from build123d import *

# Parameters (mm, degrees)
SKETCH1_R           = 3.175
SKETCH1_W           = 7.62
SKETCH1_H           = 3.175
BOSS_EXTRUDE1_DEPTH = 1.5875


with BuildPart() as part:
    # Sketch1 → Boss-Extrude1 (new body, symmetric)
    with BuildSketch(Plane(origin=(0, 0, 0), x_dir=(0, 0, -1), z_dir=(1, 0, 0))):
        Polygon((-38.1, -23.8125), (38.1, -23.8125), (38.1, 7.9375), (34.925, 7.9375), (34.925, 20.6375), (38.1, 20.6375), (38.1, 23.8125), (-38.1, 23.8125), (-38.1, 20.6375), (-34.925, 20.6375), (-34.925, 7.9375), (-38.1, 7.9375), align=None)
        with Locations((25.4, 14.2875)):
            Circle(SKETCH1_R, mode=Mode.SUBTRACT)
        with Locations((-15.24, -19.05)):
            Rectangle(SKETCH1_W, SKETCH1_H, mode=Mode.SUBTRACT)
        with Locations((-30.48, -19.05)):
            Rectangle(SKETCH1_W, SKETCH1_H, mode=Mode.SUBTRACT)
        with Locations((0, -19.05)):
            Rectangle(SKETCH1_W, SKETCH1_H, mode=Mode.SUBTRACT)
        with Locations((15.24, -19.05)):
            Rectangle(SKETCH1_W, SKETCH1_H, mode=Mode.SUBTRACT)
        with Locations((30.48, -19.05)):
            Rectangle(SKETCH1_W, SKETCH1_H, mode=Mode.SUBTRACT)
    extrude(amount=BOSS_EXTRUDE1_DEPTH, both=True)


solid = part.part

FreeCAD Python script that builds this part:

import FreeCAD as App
import Part
import Sketcher
from FreeCAD import Vector
Q = App.Units.Quantity

doc = App.newDocument("Part")
params = doc.addObject("Spreadsheet::Sheet", "Params")
for row, (alias, value) in enumerate([
    ("sketch1_diameter", "0.25 in"),
    ("sketch1_height", "3 in"),
    ("sketch1_width", "0.5 in"),
    ("sketch1_height2", "0.3 in"),
    ("sketch1_width2", "1.25 in"),
    ("pad1_length", "0.125 in"),
], start=1):
    params.set(f"A{row}", alias)
    params.set(f"B{row}", "=" + value)
    params.setAlias(f"B{row}", alias)

body = doc.addObject("PartDesign::Body", "Body")

# Sketch on YZ plane
sketch1 = body.newObject("Sketcher::SketchObject", "Sketch")
sketch1.AttachmentSupport = (doc.getObject("YZ_Plane"), [""])
sketch1.MapMode = "FlatFace"
sketch1.addGeometry(Part.LineSegment(Vector(-23.8125, 38.1, 0), Vector(-23.8125, -38.1, 0)), False)
sketch1.addGeometry(Part.LineSegment(Vector(-23.8125, -38.1, 0), Vector(7.9375, -38.1, 0)), False)
sketch1.addGeometry(Part.LineSegment(Vector(7.9375, -38.1, 0), Vector(7.9375, -34.925, 0)), False)
sketch1.addGeometry(Part.LineSegment(Vector(7.9375, -34.925, 0), Vector(20.6375, -34.925, 0)), False)
sketch1.addGeometry(Part.LineSegment(Vector(20.6375, -34.925, 0), Vector(20.6375, -38.1, 0)), False)
sketch1.addGeometry(Part.LineSegment(Vector(20.6375, -38.1, 0), Vector(23.8125, -38.1, 0)), False)
sketch1.addGeometry(Part.LineSegment(Vector(23.8125, -38.1, 0), Vector(23.8125, 38.1, 0)), False)
sketch1.addGeometry(Part.LineSegment(Vector(23.8125, 38.1, 0), Vector(20.6375, 38.1, 0)), False)
sketch1.addGeometry(Part.LineSegment(Vector(20.6375, 38.1, 0), Vector(20.6375, 34.925, 0)), False)
sketch1.addGeometry(Part.LineSegment(Vector(20.6375, 34.925, 0), Vector(7.9375, 34.925, 0)), False)
sketch1.addGeometry(Part.LineSegment(Vector(7.9375, 34.925, 0), Vector(7.9375, 38.1, 0)), False)
sketch1.addGeometry(Part.LineSegment(Vector(7.9375, 38.1, 0), Vector(-23.8125, 38.1, 0)), False)
sketch1.addGeometry(Part.LineSegment(Vector(-20.6375, 26.67, 0), Vector(-20.6375, 34.29, 0)), False)
sketch1.addGeometry(Part.LineSegment(Vector(-20.6375, 34.29, 0), Vector(-17.4625, 34.29, 0)), False)
sketch1.addGeometry(Part.LineSegment(Vector(-17.4625, 34.29, 0), Vector(-17.4625, 26.67, 0)), False)
sketch1.addGeometry(Part.LineSegment(Vector(-17.4625, 26.67, 0), Vector(-20.6375, 26.67, 0)), False)
sketch1.addGeometry(Part.LineSegment(Vector(-20.6375, 11.43, 0), Vector(-20.6375, 19.05, 0)), False)
sketch1.addGeometry(Part.LineSegment(Vector(-20.6375, 19.05, 0), Vector(-17.4625, 19.05, 0)), False)
sketch1.addGeometry(Part.LineSegment(Vector(-17.4625, 19.05, 0), Vector(-17.4625, 11.43, 0)), False)
sketch1.addGeometry(Part.LineSegment(Vector(-17.4625, 11.43, 0), Vector(-20.6375, 11.43, 0)), False)
sketch1.addGeometry(Part.LineSegment(Vector(-20.6375, -3.81, 0), Vector(-20.6375, 3.81, 0)), False)
sketch1.addGeometry(Part.LineSegment(Vector(-20.6375, 3.81, 0), Vector(-17.4625, 3.81, 0)), False)
sketch1.addGeometry(Part.LineSegment(Vector(-17.4625, 3.81, 0), Vector(-17.4625, -3.81, 0)), False)
sketch1.addGeometry(Part.LineSegment(Vector(-17.4625, -3.81, 0), Vector(-20.6375, -3.81, 0)), False)
sketch1.addGeometry(Part.LineSegment(Vector(-20.6375, -19.05, 0), Vector(-20.6375, -11.43, 0)), False)
sketch1.addGeometry(Part.LineSegment(Vector(-20.6375, -11.43, 0), Vector(-17.4625, -11.43, 0)), False)
sketch1.addGeometry(Part.LineSegment(Vector(-17.4625, -11.43, 0), Vector(-17.4625, -19.05, 0)), False)
sketch1.addGeometry(Part.LineSegment(Vector(-17.4625, -19.05, 0), Vector(-20.6375, -19.05, 0)), False)
sketch1.addGeometry(Part.LineSegment(Vector(-20.6375, -34.29, 0), Vector(-20.6375, -26.67, 0)), False)
sketch1.addGeometry(Part.LineSegment(Vector(-20.6375, -26.67, 0), Vector(-17.4625, -26.67, 0)), False)
sketch1.addGeometry(Part.LineSegment(Vector(-17.4625, -26.67, 0), Vector(-17.4625, -34.29, 0)), False)
sketch1.addGeometry(Part.LineSegment(Vector(-17.4625, -34.29, 0), Vector(-20.6375, -34.29, 0)), False)
sketch1.addGeometry(Part.Circle(Vector(14.2875, -25.4, 0), Vector(0, 0, 1), 3.175), False)
sketch1.addConstraint(Sketcher.Constraint("Coincident", 0, 2, 1, 1))
sketch1.addConstraint(Sketcher.Constraint("Coincident", 1, 2, 2, 1))
sketch1.addConstraint(Sketcher.Constraint("Coincident", 2, 2, 3, 1))
sketch1.addConstraint(Sketcher.Constraint("Coincident", 3, 2, 4, 1))
sketch1.addConstraint(Sketcher.Constraint("Coincident", 4, 2, 5, 1))
sketch1.addConstraint(Sketcher.Constraint("Coincident", 5, 2, 6, 1))
sketch1.addConstraint(Sketcher.Constraint("Coincident", 6, 2, 7, 1))
sketch1.addConstraint(Sketcher.Constraint("Coincident", 7, 2, 8, 1))
sketch1.addConstraint(Sketcher.Constraint("Coincident", 8, 2, 9, 1))
sketch1.addConstraint(Sketcher.Constraint("Coincident", 9, 2, 10, 1))
sketch1.addConstraint(Sketcher.Constraint("Coincident", 10, 2, 11, 1))
sketch1.addConstraint(Sketcher.Constraint("Coincident", 11, 2, 0, 1))
sketch1.addConstraint(Sketcher.Constraint("Coincident", 12, 2, 13, 1))
sketch1.addConstraint(Sketcher.Constraint("Coincident", 13, 2, 14, 1))
sketch1.addConstraint(Sketcher.Constraint("Coincident", 14, 2, 15, 1))
sketch1.addConstraint(Sketcher.Constraint("Coincident", 15, 2, 12, 1))
sketch1.addConstraint(Sketcher.Constraint("Coincident", 16, 2, 17, 1))
sketch1.addConstraint(Sketcher.Constraint("Coincident", 17, 2, 18, 1))
sketch1.addConstraint(Sketcher.Constraint("Coincident", 18, 2, 19, 1))
sketch1.addConstraint(Sketcher.Constraint("Coincident", 19, 2, 16, 1))
sketch1.addConstraint(Sketcher.Constraint("Coincident", 20, 2, 21, 1))
sketch1.addConstraint(Sketcher.Constraint("Coincident", 21, 2, 22, 1))
sketch1.addConstraint(Sketcher.Constraint("Coincident", 22, 2, 23, 1))
sketch1.addConstraint(Sketcher.Constraint("Coincident", 23, 2, 20, 1))
sketch1.addConstraint(Sketcher.Constraint("Coincident", 24, 2, 25, 1))
sketch1.addConstraint(Sketcher.Constraint("Coincident", 25, 2, 26, 1))
sketch1.addConstraint(Sketcher.Constraint("Coincident", 26, 2, 27, 1))
sketch1.addConstraint(Sketcher.Constraint("Coincident", 27, 2, 24, 1))
sketch1.addConstraint(Sketcher.Constraint("Coincident", 28, 2, 29, 1))
sketch1.addConstraint(Sketcher.Constraint("Coincident", 29, 2, 30, 1))
sketch1.addConstraint(Sketcher.Constraint("Coincident", 30, 2, 31, 1))
sketch1.addConstraint(Sketcher.Constraint("Coincident", 31, 2, 28, 1))
sketch1.addConstraint(Sketcher.Constraint("Vertical", 0))
sketch1.addConstraint(Sketcher.Constraint("Horizontal", 1))
sketch1.addConstraint(Sketcher.Constraint("Vertical", 2))
sketch1.addConstraint(Sketcher.Constraint("Horizontal", 3))
sketch1.addConstraint(Sketcher.Constraint("Vertical", 4))
sketch1.addConstraint(Sketcher.Constraint("Horizontal", 5))
sketch1.addConstraint(Sketcher.Constraint("Vertical", 6))
sketch1.addConstraint(Sketcher.Constraint("Horizontal", 7))
sketch1.addConstraint(Sketcher.Constraint("Vertical", 8))
sketch1.addConstraint(Sketcher.Constraint("Horizontal", 9))
sketch1.addConstraint(Sketcher.Constraint("Vertical", 10))
sketch1.addConstraint(Sketcher.Constraint("Horizontal", 11))
sketch1.addConstraint(Sketcher.Constraint("Vertical", 12))
sketch1.addConstraint(Sketcher.Constraint("Horizontal", 13))
sketch1.addConstraint(Sketcher.Constraint("Vertical", 14))
sketch1.addConstraint(Sketcher.Constraint("Horizontal", 15))
sketch1.addConstraint(Sketcher.Constraint("Vertical", 16))
sketch1.addConstraint(Sketcher.Constraint("Horizontal", 17))
sketch1.addConstraint(Sketcher.Constraint("Vertical", 18))
sketch1.addConstraint(Sketcher.Constraint("Horizontal", 19))
sketch1.addConstraint(Sketcher.Constraint("Vertical", 20))
sketch1.addConstraint(Sketcher.Constraint("Horizontal", 21))
sketch1.addConstraint(Sketcher.Constraint("Vertical", 22))
sketch1.addConstraint(Sketcher.Constraint("Horizontal", 23))
sketch1.addConstraint(Sketcher.Constraint("Vertical", 24))
sketch1.addConstraint(Sketcher.Constraint("Horizontal", 25))
sketch1.addConstraint(Sketcher.Constraint("Vertical", 26))
sketch1.addConstraint(Sketcher.Constraint("Horizontal", 27))
sketch1.addConstraint(Sketcher.Constraint("Vertical", 28))
sketch1.addConstraint(Sketcher.Constraint("Horizontal", 29))
sketch1.addConstraint(Sketcher.Constraint("Vertical", 30))
sketch1.addConstraint(Sketcher.Constraint("Horizontal", 31))
sketch1.addConstraint(Sketcher.Constraint("Symmetric", 0, 2, 6, 2, -1, 1))
sketch1.addConstraint(Sketcher.Constraint("Symmetric", 4, 2, 7, 2, -1))
sketch1.addConstraint(Sketcher.Constraint("Symmetric", 2, 2, 9, 2, -1))
sketch1.addConstraint(Sketcher.Constraint("Symmetric", 19, 2, 24, 2, -1))
sketch1.addConstraint(Sketcher.Constraint("Symmetric", 17, 2, 26, 2, -1))
sketch1.addConstraint(Sketcher.Constraint("Symmetric", 15, 2, 28, 2, -1))
sketch1.addConstraint(Sketcher.Constraint("Symmetric", 13, 2, 30, 2, -1))
sketch1.addConstraint(Sketcher.Constraint("Horizontal", 7, 2, 10, 2))
sketch1.addConstraint(Sketcher.Constraint("Vertical", 15, 2, 16, 2))
sketch1.addConstraint(Sketcher.Constraint("Vertical", 14, 2, 17, 2))
sketch1.addConstraint(Sketcher.Constraint("Vertical", 19, 2, 20, 2))
sketch1.addConstraint(Sketcher.Constraint("Vertical", 18, 2, 21, 2))
sketch1.addConstraint(Sketcher.Constraint("Equal", 7, 13))
sketch1.addConstraint(Sketcher.Constraint("Equal", 31, 2))
sketch1.addConstraint(Sketcher.Constraint("Equal", 14, 16))
sketch1.addConstraint(Sketcher.Constraint("Equal", 18, 20))
sketch1.addConstraint(Sketcher.Constraint("Diameter", 32, Q("0.25 in")))
sketch1.addConstraint(Sketcher.Constraint("DistanceY", 0, 2, 0, 1, Q("3 in")))
sketch1.addConstraint(Sketcher.Constraint("DistanceX", 3, 1, 3, 2, Q("0.5 in")))
sketch1.addConstraint(Sketcher.Constraint("DistanceY", 12, 1, 12, 2, Q("0.3 in")))
sketch1.addConstraint(Sketcher.Constraint("DistanceY", 32, 3, -1, 1, Q("1 in")))
sketch1.addConstraint(Sketcher.Constraint("DistanceX", 13, 2, 9, 2, Q("1 in")))
sketch1.addConstraint(Sketcher.Constraint("DistanceX", 1, 1, 1, 2, Q("1.25 in")))
sketch1.addConstraint(Sketcher.Constraint("DistanceX", 0, 2, 32, 3, Q("1.5 in")))
sketch1.addConstraint(Sketcher.Constraint("DistanceY", 16, 2, 15, 2, Q("0.3 in")))
sketch1.addConstraint(Sketcher.Constraint("DistanceY", 20, 2, 19, 2, Q("0.3 in")))
sketch1.addConstraint(Sketcher.Constraint("DistanceY", 24, 2, 23, 2, Q("0.3 in")))
sketch1.addConstraint(Sketcher.Constraint("DistanceX", 5, 1, 5, 2, Q("0.125 in")))
sketch1.setExpression("Constraints[80]", "Params.sketch1_diameter")
sketch1.setExpression("Constraints[81]", "Params.sketch1_height")
sketch1.setExpression("Constraints[82]", "Params.sketch1_width")
sketch1.setExpression("Constraints[83]", "Params.sketch1_height2")
sketch1.setExpression("Constraints[86]", "Params.sketch1_width2")
pad1 = body.newObject("PartDesign::Pad", "Pad")
pad1.Profile = sketch1
pad1.setExpression("Length", "Params.pad1_length")
pad1.Midplane = True

doc.recompute()
